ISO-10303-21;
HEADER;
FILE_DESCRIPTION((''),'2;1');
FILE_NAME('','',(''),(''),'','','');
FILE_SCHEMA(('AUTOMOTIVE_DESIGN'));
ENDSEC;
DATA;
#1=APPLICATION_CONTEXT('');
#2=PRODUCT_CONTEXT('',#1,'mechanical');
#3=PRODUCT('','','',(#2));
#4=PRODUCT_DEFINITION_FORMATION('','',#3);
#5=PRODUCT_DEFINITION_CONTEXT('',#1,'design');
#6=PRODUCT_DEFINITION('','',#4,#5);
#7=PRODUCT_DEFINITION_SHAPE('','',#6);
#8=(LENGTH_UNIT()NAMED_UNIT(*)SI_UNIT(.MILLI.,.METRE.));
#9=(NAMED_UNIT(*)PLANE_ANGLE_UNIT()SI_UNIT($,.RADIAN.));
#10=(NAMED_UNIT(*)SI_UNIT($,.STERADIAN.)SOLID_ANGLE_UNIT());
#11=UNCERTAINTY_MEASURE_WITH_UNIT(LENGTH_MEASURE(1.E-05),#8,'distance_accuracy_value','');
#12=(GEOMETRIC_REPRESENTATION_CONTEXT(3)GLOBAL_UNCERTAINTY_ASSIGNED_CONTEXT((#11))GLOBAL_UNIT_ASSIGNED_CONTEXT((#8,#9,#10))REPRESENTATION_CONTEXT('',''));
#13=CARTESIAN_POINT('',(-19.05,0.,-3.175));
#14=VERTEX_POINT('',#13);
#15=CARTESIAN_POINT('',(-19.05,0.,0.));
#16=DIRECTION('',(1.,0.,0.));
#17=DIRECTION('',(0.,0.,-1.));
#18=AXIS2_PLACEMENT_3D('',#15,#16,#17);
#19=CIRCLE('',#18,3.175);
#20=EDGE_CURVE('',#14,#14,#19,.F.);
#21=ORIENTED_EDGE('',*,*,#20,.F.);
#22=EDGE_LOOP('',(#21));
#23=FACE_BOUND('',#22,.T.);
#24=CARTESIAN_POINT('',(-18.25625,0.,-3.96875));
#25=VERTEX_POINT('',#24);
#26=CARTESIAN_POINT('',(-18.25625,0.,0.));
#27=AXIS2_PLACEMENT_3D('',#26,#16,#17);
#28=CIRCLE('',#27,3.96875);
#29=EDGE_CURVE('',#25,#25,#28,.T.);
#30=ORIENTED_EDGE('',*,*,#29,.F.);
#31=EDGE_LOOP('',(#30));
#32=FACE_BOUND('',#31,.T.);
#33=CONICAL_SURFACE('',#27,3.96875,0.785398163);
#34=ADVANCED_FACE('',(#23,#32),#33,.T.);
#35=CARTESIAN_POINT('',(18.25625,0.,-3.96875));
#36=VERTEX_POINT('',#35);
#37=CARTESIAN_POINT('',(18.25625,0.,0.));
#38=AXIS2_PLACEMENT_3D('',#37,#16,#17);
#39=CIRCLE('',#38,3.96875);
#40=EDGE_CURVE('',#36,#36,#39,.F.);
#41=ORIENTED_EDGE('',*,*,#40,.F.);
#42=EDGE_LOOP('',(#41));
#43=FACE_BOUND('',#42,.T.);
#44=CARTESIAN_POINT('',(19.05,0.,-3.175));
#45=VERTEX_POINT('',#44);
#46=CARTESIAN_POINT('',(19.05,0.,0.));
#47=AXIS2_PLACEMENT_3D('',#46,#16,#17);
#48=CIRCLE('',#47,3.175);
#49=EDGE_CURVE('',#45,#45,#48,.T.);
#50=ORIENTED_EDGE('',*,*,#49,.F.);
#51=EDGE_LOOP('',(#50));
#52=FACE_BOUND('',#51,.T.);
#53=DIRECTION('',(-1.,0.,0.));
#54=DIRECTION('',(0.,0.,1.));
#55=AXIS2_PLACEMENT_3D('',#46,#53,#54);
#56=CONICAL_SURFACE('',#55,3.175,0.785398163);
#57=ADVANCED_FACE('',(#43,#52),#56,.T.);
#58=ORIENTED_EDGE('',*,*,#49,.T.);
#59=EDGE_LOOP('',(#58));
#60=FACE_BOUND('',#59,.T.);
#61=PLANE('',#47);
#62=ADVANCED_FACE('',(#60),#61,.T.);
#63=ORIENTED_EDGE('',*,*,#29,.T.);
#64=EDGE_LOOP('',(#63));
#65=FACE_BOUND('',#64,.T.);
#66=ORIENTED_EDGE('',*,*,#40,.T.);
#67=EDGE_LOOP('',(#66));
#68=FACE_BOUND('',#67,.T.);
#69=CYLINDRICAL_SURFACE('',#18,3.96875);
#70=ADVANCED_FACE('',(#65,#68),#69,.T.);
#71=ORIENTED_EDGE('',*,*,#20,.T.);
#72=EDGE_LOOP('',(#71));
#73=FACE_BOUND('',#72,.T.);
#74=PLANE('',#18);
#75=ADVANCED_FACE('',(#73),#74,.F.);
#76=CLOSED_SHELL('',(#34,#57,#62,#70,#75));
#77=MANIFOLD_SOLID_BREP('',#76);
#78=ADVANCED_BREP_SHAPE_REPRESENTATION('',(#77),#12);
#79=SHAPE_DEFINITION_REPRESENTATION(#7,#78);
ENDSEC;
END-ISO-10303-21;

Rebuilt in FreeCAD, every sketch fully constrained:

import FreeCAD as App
import Part
import Sketcher
Q = App.Units.Quantity


def edges_at(feature, points):
    """Names of the edges that pass closest to the given points."""
    edges = feature.Shape.Edges
    near = lambda p: min(range(len(edges)), key=lambda i: edges[i].distToShape(Part.Vertex(*p))[0])
    return sorted({f"Edge{near(p) + 1}" for p in points})

doc = App.newDocument("Part")
body = doc.addObject("PartDesign::Body", "Body")

# Sketch on YZ plane
sketch1 = body.newObject("Sketcher::SketchObject", "Sketch")
sketch1.AttachmentSupport = (doc.getObject("YZ_Plane"), [""])
sketch1.MapMode = "FlatFace"
sketch1.addGeometry(Part.Circle(App.Vector(0, 0, 0), App.Vector(0, 0, 1), 4), False)
sketch1.addConstraint([
    Sketcher.Constraint("Coincident", 0, 3, -1, 1),
    Sketcher.Constraint("Diameter", 0, Q("0.3125 in")),
])
pad1 = body.newObject("PartDesign::Pad", "Pad")
pad1.Profile = sketch1
pad1.Type = "TwoLengths"
pad1.Length = Q("0.75 in")
pad1.Length2 = Q("0.75 in")
doc.recompute()

chamfer = body.newObject("PartDesign::Chamfer", "Chamfer")
chamfer.Base = (pad1, edges_at(pad1, [(-19.05, 0, 3.969), (19.05, 0, 3.969)]))
chamfer.Size = Q("0.03125 in")

doc.recompute()
